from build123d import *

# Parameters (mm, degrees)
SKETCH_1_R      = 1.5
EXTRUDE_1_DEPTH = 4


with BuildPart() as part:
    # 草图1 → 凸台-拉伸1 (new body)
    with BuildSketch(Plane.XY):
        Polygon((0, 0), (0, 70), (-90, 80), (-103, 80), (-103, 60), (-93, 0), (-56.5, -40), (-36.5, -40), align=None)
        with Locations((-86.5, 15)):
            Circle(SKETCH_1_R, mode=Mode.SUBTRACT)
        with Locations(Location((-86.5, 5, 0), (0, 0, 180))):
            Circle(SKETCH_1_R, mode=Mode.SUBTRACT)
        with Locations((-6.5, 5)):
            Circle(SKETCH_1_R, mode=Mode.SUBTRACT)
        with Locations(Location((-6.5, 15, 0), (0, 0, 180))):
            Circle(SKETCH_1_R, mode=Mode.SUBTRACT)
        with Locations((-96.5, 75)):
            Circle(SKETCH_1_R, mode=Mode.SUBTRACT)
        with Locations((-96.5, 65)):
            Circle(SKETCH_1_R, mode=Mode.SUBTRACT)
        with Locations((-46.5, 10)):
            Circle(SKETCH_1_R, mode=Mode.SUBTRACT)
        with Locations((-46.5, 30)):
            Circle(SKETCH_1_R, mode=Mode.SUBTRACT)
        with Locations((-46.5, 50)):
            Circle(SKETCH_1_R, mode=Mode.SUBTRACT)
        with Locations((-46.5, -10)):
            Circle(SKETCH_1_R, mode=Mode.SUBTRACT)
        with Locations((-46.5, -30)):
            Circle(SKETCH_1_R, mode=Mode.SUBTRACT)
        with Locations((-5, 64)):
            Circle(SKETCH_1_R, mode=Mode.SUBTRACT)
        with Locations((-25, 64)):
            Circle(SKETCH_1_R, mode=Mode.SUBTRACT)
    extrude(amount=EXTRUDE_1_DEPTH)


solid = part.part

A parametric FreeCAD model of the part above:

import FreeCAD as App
import Part
import Sketcher


def add_polygon(sketch, points):
    """Adds a closed chain of lines whose ends are joined by coincident constraints."""
    first, n = sketch.GeometryCount, len(points)
    for a, b in zip(points, points[1:] + points[:1]):
        sketch.addGeometry(Part.LineSegment(App.Vector(*a, 0), App.Vector(*b, 0)), False)
    for i in range(n):
        sketch.addConstraint(Sketcher.Constraint("Coincident", first + i, 2, first + (i + 1) % n, 1))

doc = App.newDocument("Part")
body = doc.addObject("PartDesign::Body", "Body")

# Sketch on XY plane
sketch1 = doc.addObject("Sketcher::SketchObject", "Sketch")
body.addObject(sketch1)
sketch1.AttachmentSupport = (doc.XY_Plane, [""])
sketch1.MapMode = "FlatFace"
add_polygon(sketch1, [(0, 0), (0, 70), (-90, 80), (-103, 80), (-103, 60), (-93, 0), (-56.5, -40), (-36.5, -40)])  # lines 0-7
sketch1.addGeometry(Part.Circle(App.Vector(-86.5, 5, 0), App.Vector(0, 0, 1), 1.5), False)  # 8
sketch1.addGeometry(Part.Circle(App.Vector(-86.5, 15, 0), App.Vector(0, 0, 1), 1.5), False)  # 9
sketch1.addGeometry(Part.Circle(App.Vector(-46.5, -30, 0), App.Vector(0, 0, 1), 1.5), False)  # 10
sketch1.addGeometry(Part.Circle(App.Vector(-46.5, -10, 0), App.Vector(0, 0, 1), 1.5), False)  # 11
sketch1.addGeometry(Part.Circle(App.Vector(-46.5, 10, 0), App.Vector(0, 0, 1), 1.5), False)  # 12
sketch1.addGeometry(Part.Circle(App.Vector(-6.5, 5, 0), App.Vector(0, 0, 1), 1.5), False)  # 13
sketch1.addGeometry(Part.Circle(App.Vector(-6.5, 15, 0), App.Vector(0, 0, 1), 1.5), False)  # 14
sketch1.addGeometry(Part.Circle(App.Vector(-96.5, 65, 0), App.Vector(0, 0, 1), 1.5), False)  # 15
sketch1.addGeometry(Part.Circle(App.Vector(-96.5, 75, 0), App.Vector(0, 0, 1), 1.5), False)  # 16
sketch1.addGeometry(Part.Circle(App.Vector(-46.5, 30, 0), App.Vector(0, 0, 1), 1.5), False)  # 17
sketch1.addGeometry(Part.Circle(App.Vector(-46.5, 50, 0), App.Vector(0, 0, 1), 1.5), False)  # 18
sketch1.addGeometry(Part.Circle(App.Vector(-25, 64, 0), App.Vector(0, 0, 1), 1.5), False)  # 19
sketch1.addGeometry(Part.Circle(App.Vector(-5, 64, 0), App.Vector(0, 0, 1), 1.5), False)  # 20
sketch1.addConstraint([
    Sketcher.Constraint("Vertical", 0),
    Sketcher.Constraint("Horizontal", 2),
    Sketcher.Constraint("Vertical", 3),
    Sketcher.Constraint("Horizontal", 6),
    Sketcher.Constraint("Coincident", 7, 2, -1, 1),
    Sketcher.Constraint("Equal", 8, 9),
    Sketcher.Constraint("Equal", 9, 10),
    Sketcher.Constraint("Equal", 10, 11),
    Sketcher.Constraint("Equal", 11, 12),
    Sketcher.Constraint("Equal", 12, 13),
    Sketcher.Constraint("Equal", 13, 14),
    Sketcher.Constraint("Equal", 14, 15),
    Sketcher.Constraint("Equal", 15, 16),
    Sketcher.Constraint("Equal", 16, 17),
    Sketcher.Constraint("Equal", 17, 18),
    Sketcher.Constraint("Equal", 18, 19),
    Sketcher.Constraint("Equal", 19, 20),
    Sketcher.Constraint("Symmetric", 11, 3, 12, 3, -1),
    Sketcher.Constraint("Symmetric", 10, 3, 17, 3, -1),
    Sketcher.Constraint("PointOnObject", 4, 2, -1),
    Sketcher.Constraint("Horizontal", 8, 3, 13, 3),
    Sketcher.Constraint("Horizontal", 9, 3, 14, 3),
    Sketcher.Constraint("Horizontal", 19, 3, 20, 3),
    Sketcher.Constraint("Vertical", 8, 3, 9, 3),
    Sketcher.Constraint("Vertical", 10, 3, 11, 3),
    Sketcher.Constraint("Vertical", 13, 3, 14, 3),
    Sketcher.Constraint("Vertical", 15, 3, 16, 3),
    Sketcher.Constraint("Vertical", 17, 3, 18, 3),
    Sketcher.Constraint("Equal", 6, 3),
    Sketcher.Constraint("Equal", 5, 7),
    Sketcher.Constraint("Diameter", 8, 3.0),
    Sketcher.Constraint("DistanceX", 2, 2, 2, 1, 13.0),
    Sketcher.Constraint("DistanceX", 6, 1, 6, 2, 20.0),
    Sketcher.Constraint("DistanceY", 0, 1, 0, 2, 70.0),
    Sketcher.Constraint("DistanceY", -1, 1, 8, 3, 5.0),
    Sketcher.Constraint("DistanceY", -1, 1, 9, 3, 15.0),
    Sketcher.Constraint("DistanceY", 10, 3, -1, 1, 30.0),
    Sketcher.Constraint("DistanceY", 11, 3, -1, 1, 10.0),
    Sketcher.Constraint("DistanceY", -1, 1, 15, 3, 65.0),
    Sketcher.Constraint("DistanceY", -1, 1, 16, 3, 75.0),
    Sketcher.Constraint("DistanceY", -1, 1, 18, 3, 50.0),
    Sketcher.Constraint("DistanceX", 19, 3, -1, 1, 25.0),
    Sketcher.Constraint("DistanceY", -1, 1, 19, 3, 64.0),
    Sketcher.Constraint("DistanceX", 20, 3, -1, 1, 5.0),
    Sketcher.Constraint("DistanceX", 1, 2, -1, 1, 90.0),
    Sketcher.Constraint("DistanceY", -1, 1, 1, 2, 80.0),
    Sketcher.Constraint("DistanceX", 4, 2, -1, 1, 93.0),
    Sketcher.Constraint("DistanceY", 5, 2, -1, 1, 40.0),
    Sketcher.Constraint("DistanceX", 8, 3, 10, 3, 40.0),
    Sketcher.Constraint("DistanceX", 12, 3, 13, 3, 40.0),
    Sketcher.Constraint("DistanceX", 15, 3, 9, 3, 10.0),
    Sketcher.Constraint("DistanceX", 5, 2, 10, 3, 10.0),
])
pad1 = doc.addObject("PartDesign::Pad", "Pad")
body.addObject(pad1)
pad1.Profile = sketch1
pad1.Length = 4

doc.recompute()
